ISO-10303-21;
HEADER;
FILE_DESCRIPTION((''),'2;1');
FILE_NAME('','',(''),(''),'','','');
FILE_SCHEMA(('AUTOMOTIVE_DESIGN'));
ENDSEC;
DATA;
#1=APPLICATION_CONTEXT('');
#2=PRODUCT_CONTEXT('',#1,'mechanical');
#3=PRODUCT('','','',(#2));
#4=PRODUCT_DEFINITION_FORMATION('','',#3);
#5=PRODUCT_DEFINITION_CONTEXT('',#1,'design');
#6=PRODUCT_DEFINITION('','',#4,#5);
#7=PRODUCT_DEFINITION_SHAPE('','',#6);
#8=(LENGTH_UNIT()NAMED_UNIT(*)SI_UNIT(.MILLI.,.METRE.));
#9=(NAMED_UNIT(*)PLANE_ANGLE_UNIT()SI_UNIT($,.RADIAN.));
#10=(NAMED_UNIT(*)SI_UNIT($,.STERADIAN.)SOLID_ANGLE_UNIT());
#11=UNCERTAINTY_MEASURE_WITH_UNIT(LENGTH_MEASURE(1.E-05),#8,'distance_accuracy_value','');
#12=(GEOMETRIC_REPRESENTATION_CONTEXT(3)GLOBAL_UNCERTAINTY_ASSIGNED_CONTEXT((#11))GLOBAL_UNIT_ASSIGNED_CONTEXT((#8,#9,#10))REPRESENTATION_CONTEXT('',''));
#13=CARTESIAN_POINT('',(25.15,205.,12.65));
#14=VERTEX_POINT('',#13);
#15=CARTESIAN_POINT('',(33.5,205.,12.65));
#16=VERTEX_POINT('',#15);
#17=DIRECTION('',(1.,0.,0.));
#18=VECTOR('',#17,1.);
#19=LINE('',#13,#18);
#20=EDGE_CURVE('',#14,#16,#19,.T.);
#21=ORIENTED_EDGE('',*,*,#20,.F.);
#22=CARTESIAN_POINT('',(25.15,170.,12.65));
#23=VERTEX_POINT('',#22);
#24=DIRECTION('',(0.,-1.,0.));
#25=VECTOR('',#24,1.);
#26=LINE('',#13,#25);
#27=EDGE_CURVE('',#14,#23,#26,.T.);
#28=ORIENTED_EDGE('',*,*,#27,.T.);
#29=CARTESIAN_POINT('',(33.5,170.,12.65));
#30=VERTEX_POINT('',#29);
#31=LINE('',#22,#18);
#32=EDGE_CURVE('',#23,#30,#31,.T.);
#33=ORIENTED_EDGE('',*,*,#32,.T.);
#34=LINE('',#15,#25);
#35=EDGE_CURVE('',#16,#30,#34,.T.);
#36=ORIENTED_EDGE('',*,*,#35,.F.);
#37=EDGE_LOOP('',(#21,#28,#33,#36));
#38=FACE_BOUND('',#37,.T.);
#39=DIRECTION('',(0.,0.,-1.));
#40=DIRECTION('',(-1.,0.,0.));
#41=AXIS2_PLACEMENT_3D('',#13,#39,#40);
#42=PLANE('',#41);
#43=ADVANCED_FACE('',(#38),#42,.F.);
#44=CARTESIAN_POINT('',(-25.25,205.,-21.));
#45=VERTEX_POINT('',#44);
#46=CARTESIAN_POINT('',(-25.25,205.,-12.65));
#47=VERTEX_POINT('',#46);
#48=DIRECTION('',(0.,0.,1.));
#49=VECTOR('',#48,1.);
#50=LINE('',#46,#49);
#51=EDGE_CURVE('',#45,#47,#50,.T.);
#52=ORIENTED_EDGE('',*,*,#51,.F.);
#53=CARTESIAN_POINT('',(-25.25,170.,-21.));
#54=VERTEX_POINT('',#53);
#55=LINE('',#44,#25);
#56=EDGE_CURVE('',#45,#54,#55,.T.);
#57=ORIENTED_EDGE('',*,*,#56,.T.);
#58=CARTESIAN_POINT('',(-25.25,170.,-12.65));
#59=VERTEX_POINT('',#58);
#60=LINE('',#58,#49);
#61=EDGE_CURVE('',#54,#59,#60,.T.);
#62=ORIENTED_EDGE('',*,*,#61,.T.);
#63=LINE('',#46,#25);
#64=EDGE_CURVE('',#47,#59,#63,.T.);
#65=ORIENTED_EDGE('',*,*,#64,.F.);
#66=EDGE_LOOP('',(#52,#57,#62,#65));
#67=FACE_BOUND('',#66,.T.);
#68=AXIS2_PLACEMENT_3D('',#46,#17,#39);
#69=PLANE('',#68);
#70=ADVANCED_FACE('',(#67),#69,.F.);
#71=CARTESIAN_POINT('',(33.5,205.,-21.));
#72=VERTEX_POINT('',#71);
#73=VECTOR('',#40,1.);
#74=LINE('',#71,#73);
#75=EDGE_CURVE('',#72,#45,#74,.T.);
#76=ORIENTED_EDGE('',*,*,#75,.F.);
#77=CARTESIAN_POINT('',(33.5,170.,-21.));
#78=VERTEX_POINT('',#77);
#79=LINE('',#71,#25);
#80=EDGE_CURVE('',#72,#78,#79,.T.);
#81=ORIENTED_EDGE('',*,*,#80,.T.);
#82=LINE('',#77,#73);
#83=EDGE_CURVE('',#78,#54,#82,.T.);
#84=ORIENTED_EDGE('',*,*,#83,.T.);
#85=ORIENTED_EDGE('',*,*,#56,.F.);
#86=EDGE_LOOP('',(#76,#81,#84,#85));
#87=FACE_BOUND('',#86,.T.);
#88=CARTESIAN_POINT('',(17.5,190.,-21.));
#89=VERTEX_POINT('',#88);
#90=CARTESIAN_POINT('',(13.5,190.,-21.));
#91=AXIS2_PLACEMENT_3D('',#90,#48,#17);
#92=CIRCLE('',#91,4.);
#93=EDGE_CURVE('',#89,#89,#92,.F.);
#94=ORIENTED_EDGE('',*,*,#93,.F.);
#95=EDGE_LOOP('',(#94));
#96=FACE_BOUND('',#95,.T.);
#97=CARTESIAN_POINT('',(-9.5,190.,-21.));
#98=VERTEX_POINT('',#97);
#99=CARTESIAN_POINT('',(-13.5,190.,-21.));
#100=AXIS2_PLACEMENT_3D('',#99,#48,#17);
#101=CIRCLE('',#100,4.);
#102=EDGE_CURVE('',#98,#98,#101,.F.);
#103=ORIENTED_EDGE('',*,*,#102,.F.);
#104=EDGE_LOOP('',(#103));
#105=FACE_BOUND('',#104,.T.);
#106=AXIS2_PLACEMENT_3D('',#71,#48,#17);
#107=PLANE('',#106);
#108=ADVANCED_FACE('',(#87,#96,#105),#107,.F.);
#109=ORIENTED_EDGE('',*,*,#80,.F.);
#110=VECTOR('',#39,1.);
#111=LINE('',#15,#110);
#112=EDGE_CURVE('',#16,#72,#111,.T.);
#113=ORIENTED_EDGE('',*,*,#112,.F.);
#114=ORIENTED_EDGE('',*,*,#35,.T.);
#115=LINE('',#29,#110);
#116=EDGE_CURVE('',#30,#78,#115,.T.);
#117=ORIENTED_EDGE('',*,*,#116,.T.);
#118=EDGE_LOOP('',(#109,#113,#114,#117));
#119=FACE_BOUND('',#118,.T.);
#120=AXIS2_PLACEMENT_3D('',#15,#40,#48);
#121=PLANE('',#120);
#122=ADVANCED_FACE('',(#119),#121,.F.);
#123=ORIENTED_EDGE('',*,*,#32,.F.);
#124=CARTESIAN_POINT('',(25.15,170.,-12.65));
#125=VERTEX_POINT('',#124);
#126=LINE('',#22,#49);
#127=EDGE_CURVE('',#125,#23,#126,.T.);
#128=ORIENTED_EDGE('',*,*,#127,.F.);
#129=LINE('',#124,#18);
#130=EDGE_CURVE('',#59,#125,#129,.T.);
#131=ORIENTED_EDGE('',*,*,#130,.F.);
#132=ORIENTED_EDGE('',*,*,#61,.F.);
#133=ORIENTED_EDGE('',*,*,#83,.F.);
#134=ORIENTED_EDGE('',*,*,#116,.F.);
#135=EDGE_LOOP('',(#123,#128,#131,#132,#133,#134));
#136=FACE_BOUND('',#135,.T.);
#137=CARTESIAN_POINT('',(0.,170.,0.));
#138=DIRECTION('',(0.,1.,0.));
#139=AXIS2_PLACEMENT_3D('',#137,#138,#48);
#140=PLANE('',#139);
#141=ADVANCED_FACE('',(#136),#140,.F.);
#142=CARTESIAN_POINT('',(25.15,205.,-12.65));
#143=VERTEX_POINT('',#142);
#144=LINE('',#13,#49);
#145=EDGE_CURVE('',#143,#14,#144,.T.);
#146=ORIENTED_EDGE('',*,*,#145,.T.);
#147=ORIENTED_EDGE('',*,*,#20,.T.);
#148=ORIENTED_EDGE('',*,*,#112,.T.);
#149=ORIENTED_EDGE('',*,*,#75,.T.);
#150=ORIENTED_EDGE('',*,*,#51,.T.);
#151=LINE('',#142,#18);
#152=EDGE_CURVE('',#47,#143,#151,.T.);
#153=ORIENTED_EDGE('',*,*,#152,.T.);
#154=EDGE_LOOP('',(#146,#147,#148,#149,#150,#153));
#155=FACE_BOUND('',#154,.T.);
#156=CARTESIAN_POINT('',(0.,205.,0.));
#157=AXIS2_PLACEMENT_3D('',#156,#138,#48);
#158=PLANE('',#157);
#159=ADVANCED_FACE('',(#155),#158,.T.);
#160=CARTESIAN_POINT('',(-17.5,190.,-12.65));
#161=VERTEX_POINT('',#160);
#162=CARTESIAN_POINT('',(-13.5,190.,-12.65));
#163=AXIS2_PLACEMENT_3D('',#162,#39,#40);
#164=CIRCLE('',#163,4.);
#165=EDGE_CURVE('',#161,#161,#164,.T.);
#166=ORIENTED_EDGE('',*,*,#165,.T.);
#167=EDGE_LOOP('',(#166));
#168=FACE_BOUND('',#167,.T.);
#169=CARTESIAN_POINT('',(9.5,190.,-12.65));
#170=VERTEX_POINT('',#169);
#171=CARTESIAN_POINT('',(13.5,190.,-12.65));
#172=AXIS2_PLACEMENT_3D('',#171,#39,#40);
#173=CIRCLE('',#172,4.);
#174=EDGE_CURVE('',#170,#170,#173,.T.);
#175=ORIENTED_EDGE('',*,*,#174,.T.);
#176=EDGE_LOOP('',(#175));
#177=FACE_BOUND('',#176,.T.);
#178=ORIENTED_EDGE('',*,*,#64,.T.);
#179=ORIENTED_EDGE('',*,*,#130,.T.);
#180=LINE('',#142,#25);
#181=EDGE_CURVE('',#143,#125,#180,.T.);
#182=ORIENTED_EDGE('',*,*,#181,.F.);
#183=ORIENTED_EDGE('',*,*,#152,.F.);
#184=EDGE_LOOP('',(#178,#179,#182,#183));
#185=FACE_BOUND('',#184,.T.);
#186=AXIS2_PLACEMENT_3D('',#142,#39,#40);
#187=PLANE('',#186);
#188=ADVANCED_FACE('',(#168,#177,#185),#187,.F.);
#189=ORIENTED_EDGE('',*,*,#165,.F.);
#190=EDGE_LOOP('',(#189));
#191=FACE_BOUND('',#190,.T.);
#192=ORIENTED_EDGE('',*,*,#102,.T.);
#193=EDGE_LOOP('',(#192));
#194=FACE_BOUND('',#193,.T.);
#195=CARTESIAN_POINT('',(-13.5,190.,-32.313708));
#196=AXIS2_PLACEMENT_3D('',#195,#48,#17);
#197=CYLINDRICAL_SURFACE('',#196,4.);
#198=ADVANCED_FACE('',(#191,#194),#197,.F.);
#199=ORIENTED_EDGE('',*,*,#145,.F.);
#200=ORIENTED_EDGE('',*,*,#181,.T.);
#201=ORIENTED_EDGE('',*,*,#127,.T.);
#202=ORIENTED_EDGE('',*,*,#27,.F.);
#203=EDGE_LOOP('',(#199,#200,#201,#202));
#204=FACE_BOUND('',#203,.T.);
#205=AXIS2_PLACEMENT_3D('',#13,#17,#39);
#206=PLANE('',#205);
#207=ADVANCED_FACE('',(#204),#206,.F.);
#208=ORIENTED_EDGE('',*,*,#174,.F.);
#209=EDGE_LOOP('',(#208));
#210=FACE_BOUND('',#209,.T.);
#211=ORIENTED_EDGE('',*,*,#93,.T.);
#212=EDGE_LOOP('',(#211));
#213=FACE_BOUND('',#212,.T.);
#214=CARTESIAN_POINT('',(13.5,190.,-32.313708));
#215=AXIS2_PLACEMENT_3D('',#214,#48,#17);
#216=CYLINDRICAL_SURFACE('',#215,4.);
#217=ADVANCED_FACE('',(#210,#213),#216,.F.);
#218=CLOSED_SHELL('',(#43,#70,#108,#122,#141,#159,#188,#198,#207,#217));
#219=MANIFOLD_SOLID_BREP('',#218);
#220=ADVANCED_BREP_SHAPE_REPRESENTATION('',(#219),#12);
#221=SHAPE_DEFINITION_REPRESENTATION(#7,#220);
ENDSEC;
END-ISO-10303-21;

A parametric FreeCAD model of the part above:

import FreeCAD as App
import Part
import Sketcher
from FreeCAD import Vector
Q = App.Units.Quantity


def add_polygon(sketch, points):
    """Adds a closed chain of lines whose ends are joined by coincident constraints."""
    first, n = sketch.GeometryCount, len(points)
    for a, b in zip(points, points[1:] + points[:1]):
        sketch.addGeometry(Part.LineSegment(App.Vector(*a, 0), App.Vector(*b, 0)), False)
    for i in range(n):
        sketch.addConstraint(Sketcher.Constraint("Coincident", first + i, 2, first + (i + 1) % n, 1))

doc = App.newDocument("Part")
body = doc.addObject("PartDesign::Body", "Body")

# Sketch on XZ plane
sketch1 = body.newObject("Sketcher::SketchObject", "Sketch")
sketch1.AttachmentSupport = (doc.getObject("XZ_Plane"), [""])
sketch1.MapMode = "FlatFace"
sketch1.AttachmentOffset = App.Placement(Vector(0, 0, -170), App.Rotation())
add_polygon(sketch1, [(25, 13), (34, 13), (34, -21), (-25, -21), (-25, -13), (25, -13)])  # lines 0-5
sketch1.addConstraint([
    Sketcher.Constraint("Horizontal", 0),
    Sketcher.Constraint("Vertical", 1),
    Sketcher.Constraint("Horizontal", 2),
    Sketcher.Constraint("Vertical", 3),
    Sketcher.Constraint("Horizontal", 4),
    Sketcher.Constraint("Vertical", 5),
    Sketcher.Constraint("Equal", 0, 3),
    Sketcher.Constraint("DistanceX", 4, 1, 4, 2, Q("50.4 mm")),
    Sketcher.Constraint("DistanceY", 5, 1, 5, 2, Q("25.3 mm")),
    Sketcher.Constraint("DistanceY", 1, 2, -1, 1, Q("21 mm")),
    Sketcher.Constraint("DistanceX", 0, 1, 0, 2, Q("8.35 mm")),
    Sketcher.Constraint("DistanceX", -1, 1, 0, 2, Q("33.5 mm")),
])
pad1 = body.newObject("PartDesign::Pad", "Pad")
pad1.Profile = sketch1
pad1.Length = 35
pad1.Reversed = True

# Sketch on XY plane
sketch2 = body.newObject("Sketcher::SketchObject", "Sketch001")
sketch2.AttachmentSupport = (doc.getObject("XY_Plane"), [""])
sketch2.MapMode = "FlatFace"
sketch2.addGeometry([
    Part.Circle(Vector(-13.5, 190, 0), Vector(0, 0, 1), 4),
    Part.Circle(Vector(13.5, 190, 0), Vector(0, 0, 1), 4),
], False)
sketch2.addConstraint([
    Sketcher.Constraint("Equal", 0, 1),
    Sketcher.Constraint("Symmetric", 0, 3, 1, 3, -2),
    Sketcher.Constraint("Diameter", 0, Q("8 mm")),
    Sketcher.Constraint("DistanceY", -1, 1, 0, 3, Q("190 mm")),
    Sketcher.Constraint("DistanceX", 0, 3, 1, 3, Q("27 mm")),
])
pocket1 = body.newObject("PartDesign::Pocket", "Pocket")
pocket1.Profile = sketch2
pocket1.Length = 21

doc.recompute()
